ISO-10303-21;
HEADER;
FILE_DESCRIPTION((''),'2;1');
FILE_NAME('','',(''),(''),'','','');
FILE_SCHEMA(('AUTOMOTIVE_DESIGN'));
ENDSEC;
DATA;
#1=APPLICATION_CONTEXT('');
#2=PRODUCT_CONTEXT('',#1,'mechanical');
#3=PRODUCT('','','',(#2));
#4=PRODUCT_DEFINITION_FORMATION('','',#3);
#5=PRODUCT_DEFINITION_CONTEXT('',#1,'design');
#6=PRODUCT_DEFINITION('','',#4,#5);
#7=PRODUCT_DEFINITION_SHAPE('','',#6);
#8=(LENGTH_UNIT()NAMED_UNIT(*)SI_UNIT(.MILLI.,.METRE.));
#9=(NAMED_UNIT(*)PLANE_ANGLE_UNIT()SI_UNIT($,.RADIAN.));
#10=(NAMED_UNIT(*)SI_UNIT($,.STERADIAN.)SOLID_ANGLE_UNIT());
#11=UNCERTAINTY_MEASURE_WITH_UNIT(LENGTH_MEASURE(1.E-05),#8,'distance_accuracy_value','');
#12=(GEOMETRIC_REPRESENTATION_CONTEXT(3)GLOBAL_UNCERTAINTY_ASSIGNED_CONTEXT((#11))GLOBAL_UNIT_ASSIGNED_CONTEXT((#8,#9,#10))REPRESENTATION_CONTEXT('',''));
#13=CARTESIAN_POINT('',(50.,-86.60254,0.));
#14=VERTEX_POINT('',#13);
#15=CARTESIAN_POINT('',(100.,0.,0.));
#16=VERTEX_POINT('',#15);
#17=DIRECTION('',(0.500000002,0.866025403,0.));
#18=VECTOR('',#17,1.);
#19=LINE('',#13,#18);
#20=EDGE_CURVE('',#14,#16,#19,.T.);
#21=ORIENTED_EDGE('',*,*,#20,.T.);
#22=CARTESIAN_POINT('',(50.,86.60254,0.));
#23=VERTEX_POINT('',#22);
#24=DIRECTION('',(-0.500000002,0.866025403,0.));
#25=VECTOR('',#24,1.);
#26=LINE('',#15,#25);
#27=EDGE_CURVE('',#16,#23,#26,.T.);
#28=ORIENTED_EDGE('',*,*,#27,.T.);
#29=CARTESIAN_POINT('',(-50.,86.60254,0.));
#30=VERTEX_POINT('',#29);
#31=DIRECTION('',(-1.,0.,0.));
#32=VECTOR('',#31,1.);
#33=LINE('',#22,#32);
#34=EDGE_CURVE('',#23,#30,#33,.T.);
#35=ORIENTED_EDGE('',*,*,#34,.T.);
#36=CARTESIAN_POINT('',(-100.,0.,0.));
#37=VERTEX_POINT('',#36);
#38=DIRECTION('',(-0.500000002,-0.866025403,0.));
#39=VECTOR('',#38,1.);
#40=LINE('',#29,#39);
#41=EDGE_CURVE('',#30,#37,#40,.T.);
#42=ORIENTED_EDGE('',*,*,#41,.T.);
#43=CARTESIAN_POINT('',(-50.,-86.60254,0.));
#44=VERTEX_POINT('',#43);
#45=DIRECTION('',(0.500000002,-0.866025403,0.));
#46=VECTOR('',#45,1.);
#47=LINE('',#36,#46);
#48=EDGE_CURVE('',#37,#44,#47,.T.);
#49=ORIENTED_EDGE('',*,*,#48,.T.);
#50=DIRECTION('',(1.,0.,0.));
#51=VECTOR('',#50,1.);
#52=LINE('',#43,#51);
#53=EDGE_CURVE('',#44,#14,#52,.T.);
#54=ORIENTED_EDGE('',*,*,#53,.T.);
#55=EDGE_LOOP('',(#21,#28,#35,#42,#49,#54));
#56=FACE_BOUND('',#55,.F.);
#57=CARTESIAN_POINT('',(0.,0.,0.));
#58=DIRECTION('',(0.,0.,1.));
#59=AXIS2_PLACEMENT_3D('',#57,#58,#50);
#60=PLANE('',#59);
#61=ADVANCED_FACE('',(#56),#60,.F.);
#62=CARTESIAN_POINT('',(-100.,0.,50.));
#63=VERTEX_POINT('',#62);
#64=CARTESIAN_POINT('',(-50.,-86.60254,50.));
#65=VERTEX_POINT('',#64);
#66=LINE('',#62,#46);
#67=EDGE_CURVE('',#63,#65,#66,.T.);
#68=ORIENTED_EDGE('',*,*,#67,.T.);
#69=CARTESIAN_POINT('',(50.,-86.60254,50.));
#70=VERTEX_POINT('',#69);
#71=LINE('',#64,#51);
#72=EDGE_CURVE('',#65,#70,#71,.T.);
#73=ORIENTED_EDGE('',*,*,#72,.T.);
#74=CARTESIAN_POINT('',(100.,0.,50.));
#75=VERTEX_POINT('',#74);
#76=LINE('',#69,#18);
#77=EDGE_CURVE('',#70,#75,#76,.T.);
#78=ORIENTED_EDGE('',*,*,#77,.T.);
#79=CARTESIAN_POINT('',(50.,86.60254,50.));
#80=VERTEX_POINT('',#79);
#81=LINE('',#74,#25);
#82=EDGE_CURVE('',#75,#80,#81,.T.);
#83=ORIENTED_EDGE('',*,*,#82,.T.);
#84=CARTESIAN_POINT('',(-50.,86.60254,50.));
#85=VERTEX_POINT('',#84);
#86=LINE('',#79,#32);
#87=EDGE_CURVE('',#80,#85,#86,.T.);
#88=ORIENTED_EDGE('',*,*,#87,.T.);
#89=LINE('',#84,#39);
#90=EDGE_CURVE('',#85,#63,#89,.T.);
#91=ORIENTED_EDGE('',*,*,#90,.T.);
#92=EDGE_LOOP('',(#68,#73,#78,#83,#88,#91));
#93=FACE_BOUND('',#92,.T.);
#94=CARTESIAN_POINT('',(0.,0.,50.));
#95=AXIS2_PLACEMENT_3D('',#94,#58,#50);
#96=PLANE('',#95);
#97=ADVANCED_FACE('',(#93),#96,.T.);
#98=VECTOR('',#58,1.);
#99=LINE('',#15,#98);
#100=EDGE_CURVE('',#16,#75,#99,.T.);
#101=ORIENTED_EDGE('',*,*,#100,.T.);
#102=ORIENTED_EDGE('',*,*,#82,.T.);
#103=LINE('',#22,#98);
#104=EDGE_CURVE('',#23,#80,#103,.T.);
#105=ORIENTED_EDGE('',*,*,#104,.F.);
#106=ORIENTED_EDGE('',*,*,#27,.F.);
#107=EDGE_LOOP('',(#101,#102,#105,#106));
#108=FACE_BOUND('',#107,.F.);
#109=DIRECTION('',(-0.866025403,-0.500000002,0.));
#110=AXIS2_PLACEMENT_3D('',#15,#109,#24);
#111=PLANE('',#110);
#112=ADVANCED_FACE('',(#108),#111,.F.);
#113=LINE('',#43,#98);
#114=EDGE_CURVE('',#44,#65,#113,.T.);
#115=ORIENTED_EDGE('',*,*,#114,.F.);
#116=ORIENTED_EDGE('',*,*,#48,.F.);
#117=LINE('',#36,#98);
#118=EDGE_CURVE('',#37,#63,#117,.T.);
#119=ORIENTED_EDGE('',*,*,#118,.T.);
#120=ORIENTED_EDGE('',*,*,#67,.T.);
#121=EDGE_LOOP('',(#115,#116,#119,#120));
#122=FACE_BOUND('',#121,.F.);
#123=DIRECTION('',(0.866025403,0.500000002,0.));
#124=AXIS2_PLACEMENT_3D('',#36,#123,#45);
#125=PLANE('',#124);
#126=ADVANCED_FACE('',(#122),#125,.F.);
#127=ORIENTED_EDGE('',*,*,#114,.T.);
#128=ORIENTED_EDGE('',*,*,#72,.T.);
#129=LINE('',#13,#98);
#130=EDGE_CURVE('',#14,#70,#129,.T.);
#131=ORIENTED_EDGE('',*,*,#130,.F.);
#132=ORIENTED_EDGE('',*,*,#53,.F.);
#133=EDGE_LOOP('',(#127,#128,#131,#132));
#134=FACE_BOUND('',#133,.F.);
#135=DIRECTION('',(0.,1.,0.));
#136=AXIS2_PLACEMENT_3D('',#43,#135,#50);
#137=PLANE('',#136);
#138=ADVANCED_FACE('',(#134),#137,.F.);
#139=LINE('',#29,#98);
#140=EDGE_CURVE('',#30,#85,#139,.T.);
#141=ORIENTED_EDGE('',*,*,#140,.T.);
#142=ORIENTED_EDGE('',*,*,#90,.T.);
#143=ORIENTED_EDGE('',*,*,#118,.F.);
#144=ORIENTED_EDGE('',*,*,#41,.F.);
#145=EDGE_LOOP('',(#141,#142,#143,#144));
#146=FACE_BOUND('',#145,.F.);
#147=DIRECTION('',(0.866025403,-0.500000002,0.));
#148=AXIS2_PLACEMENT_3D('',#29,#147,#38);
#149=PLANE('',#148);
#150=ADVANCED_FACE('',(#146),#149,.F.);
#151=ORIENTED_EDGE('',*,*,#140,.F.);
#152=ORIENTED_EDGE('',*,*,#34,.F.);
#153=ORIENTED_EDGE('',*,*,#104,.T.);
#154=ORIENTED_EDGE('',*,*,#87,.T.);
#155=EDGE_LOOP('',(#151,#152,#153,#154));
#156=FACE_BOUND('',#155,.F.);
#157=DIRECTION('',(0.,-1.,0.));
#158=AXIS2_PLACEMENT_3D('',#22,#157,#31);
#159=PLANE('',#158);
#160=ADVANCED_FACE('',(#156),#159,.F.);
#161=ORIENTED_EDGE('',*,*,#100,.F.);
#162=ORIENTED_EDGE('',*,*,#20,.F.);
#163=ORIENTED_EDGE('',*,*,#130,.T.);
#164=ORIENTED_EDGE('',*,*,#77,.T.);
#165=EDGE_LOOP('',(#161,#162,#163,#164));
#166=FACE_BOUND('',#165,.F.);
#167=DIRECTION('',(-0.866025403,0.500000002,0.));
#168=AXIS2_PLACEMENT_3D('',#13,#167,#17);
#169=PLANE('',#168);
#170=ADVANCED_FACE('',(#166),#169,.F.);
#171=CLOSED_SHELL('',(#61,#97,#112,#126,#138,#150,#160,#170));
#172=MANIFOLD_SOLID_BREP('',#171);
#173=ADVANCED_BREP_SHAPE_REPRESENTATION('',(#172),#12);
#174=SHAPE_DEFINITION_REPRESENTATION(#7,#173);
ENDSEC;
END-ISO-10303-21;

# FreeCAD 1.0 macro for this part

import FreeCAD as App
import Part
import Sketcher

V = App.Vector
Q = App.Units.Quantity


def add_polygon(sketch, points):
    """Adds a closed chain of lines whose ends are joined by coincident constraints."""
    first, n = sketch.GeometryCount, len(points)
    for a, b in zip(points, points[1:] + points[:1]):
        sketch.addGeometry(Part.LineSegment(App.Vector(*a, 0), App.Vector(*b, 0)), False)
    for i in range(n):
        sketch.addConstraint(Sketcher.Constraint("Coincident", first + i, 2, first + (i + 1) % n, 1))

doc = App.newDocument("Part")
body = doc.addObject("PartDesign::Body", "Body")

# Sketch on XY plane
sketch1 = body.newObject("Sketcher::SketchObject", "Sketch")
sketch1.AttachmentSupport = (doc.getObject("XY_Plane"), [""])
sketch1.MapMode = "FlatFace"
add_polygon(sketch1, [(100, 0), (50, 87), (-50, 87), (-100, 0), (-50, -87), (50, -87)])  # lines 0-5
sketch1.addConstraint(Sketcher.Constraint("Horizontal", 1))
sketch1.addConstraint(Sketcher.Constraint("Horizontal", 4))
sketch1.addConstraint(Sketcher.Constraint("Symmetric", 0, 2, 3, 2, -1, 1))
sketch1.addConstraint(Sketcher.Constraint("Symmetric", 2, 2, 5, 2, -1, 1))
sketch1.addConstraint(Sketcher.Constraint("PointOnObject", 2, 2, -1))
sketch1.addConstraint(Sketcher.Constraint("Parallel", 2, 5))
sketch1.addConstraint(Sketcher.Constraint("Vertical", 1, 2, 3, 2))
sketch1.addConstraint(Sketcher.Constraint("DistanceX", 1, 2, 1, 1, Q("100 mm")))
sketch1.addConstraint(Sketcher.Constraint("Angle", 0, Q("120 deg")))
sketch1.addConstraint(Sketcher.Constraint("Distance", 0, Q("100 mm")))
pad1 = body.newObject("PartDesign::Pad", "Pad")
pad1.Profile = sketch1
pad1.Length = 50

doc.recompute()
